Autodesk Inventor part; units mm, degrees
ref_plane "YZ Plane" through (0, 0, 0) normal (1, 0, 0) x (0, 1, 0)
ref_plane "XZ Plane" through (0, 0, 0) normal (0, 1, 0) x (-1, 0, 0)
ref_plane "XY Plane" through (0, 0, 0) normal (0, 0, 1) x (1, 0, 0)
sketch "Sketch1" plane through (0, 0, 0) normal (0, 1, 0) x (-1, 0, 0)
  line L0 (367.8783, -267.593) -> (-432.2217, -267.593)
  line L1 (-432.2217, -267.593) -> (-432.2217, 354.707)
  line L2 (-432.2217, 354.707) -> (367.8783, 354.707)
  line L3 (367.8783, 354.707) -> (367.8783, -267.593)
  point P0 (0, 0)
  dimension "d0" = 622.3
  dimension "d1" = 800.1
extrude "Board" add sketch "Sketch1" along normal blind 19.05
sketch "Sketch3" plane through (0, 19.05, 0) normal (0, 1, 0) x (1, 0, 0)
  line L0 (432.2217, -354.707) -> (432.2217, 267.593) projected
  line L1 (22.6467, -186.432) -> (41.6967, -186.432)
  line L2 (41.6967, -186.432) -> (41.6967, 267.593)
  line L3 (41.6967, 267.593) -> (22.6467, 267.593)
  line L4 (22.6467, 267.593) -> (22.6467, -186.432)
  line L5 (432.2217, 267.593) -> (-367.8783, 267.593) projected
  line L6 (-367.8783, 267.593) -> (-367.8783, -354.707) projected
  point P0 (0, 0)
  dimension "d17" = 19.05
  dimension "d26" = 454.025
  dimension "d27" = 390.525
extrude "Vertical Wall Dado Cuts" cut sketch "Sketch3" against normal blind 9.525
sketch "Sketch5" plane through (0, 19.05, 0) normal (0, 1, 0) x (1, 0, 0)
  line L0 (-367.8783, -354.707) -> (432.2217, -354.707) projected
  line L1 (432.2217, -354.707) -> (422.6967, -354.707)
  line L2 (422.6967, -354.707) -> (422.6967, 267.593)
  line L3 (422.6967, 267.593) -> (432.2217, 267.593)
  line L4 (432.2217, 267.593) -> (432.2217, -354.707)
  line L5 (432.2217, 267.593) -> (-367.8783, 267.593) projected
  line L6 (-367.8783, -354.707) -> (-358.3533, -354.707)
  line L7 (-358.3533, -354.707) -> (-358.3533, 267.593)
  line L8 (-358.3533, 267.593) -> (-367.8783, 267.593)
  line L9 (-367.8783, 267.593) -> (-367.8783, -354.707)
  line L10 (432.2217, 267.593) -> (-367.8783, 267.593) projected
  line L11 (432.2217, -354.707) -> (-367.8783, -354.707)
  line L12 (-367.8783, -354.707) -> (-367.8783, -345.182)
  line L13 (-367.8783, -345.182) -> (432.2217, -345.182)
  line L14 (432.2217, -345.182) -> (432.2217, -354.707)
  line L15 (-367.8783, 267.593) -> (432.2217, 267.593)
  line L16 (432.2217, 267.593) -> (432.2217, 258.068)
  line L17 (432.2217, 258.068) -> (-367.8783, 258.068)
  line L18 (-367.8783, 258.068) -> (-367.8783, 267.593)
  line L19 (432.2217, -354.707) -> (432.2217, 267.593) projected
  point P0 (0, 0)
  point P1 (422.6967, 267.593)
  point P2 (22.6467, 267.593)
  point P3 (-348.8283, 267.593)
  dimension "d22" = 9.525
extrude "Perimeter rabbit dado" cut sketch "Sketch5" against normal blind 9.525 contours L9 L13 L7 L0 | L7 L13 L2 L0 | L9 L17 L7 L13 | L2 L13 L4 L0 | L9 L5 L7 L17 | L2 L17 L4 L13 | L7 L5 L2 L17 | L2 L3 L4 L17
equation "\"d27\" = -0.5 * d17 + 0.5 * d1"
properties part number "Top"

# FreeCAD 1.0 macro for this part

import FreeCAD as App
import Part
import Sketcher
from FreeCAD import Vector
Q = App.Units.Quantity

doc = App.newDocument("Part")
body = doc.addObject("PartDesign::Body", "Body")

sketch1 = doc.addObject("Sketcher::SketchObject", "Sketch")
body.addObject(sketch1)
sketch1.AttachmentSupport = (doc.XZ_Plane, [""])
sketch1.MapMode = "FlatFace"
sketch1.addGeometry([
    Part.LineSegment(Vector(432, -268, 0), Vector(-368, -268, 0)),
    Part.LineSegment(Vector(-368, -268, 0), Vector(-368, 355, 0)),
    Part.LineSegment(Vector(-368, 355, 0), Vector(432, 355, 0)),
    Part.LineSegment(Vector(432, 355, 0), Vector(432, -268, 0)),
], False)
sketch1.addConstraint([
    Sketcher.Constraint("Coincident", 0, 2, 1, 1),
    Sketcher.Constraint("Coincident", 1, 2, 2, 1),
    Sketcher.Constraint("Coincident", 2, 2, 3, 1),
    Sketcher.Constraint("Coincident", 3, 2, 0, 1),
    Sketcher.Constraint("Horizontal", 0),
    Sketcher.Constraint("Vertical", 1),
    Sketcher.Constraint("Horizontal", 2),
    Sketcher.Constraint("Vertical", 3),
    Sketcher.Constraint("DistanceX", 0, 2, 0, 1, Q("31.5 in")),
    Sketcher.Constraint("DistanceY", 1, 1, 1, 2, Q("24.5 in")),
    Sketcher.Constraint("DistanceX", 0, 2, -1, 1, Q("14.4834 in")),
    Sketcher.Constraint("DistanceY", 0, 2, -1, 1, Q("267.593 mm")),
])
pad1 = doc.addObject("PartDesign::Pad", "Pad")
body.addObject(pad1)
pad1.Profile = sketch1
pad1.Length = Q("0.75 in")
pad1.Reversed = True

sketch2 = doc.addObject("Sketcher::SketchObject", "Sketch001")
body.addObject(sketch2)
sketch2.AttachmentSupport = (doc.XZ_Plane, [""])
sketch2.MapMode = "FlatFace"
sketch2.AttachmentOffset = App.Placement(Vector(0, 0, -0.75 * 25.4), App.Rotation())
sketch2.addGeometry([
    Part.LineSegment(Vector(23, -268, 0), Vector(23, 186, 0)),
    Part.LineSegment(Vector(23, 186, 0), Vector(42, 186, 0)),
    Part.LineSegment(Vector(42, 186, 0), Vector(42, -268, 0)),
    Part.LineSegment(Vector(42, -268, 0), Vector(23, -268, 0)),
], False)
sketch2.addConstraint([
    Sketcher.Constraint("Coincident", 0, 2, 1, 1),
    Sketcher.Constraint("Coincident", 1, 2, 2, 1),
    Sketcher.Constraint("Coincident", 2, 2, 3, 1),
    Sketcher.Constraint("Coincident", 3, 2, 0, 1),
    Sketcher.Constraint("Vertical", 0),
    Sketcher.Constraint("Horizontal", 1),
    Sketcher.Constraint("Vertical", 2),
    Sketcher.Constraint("Horizontal", 3),
    Sketcher.Constraint("DistanceX", 1, 1, 1, 2, Q("0.75 in")),
    Sketcher.Constraint("DistanceY", 0, 1, 0, 2, Q("17.875 in")),
    Sketcher.Constraint("DistanceX", -1, 1, 0, 2, Q("0.8916 in")),
    Sketcher.Constraint("DistanceY", -1, 1, 0, 2, Q("186.432 mm")),
])
pocket1 = doc.addObject("PartDesign::Pocket", "Pocket")
body.addObject(pocket1)
pocket1.Profile = sketch2
pocket1.Length = Q("0.375 in")
pocket1.Reversed = True

sketch3 = doc.addObject("Sketcher::SketchObject", "Sketch002")
body.addObject(sketch3)
sketch3.AttachmentSupport = (doc.XZ_Plane, [""])
sketch3.MapMode = "FlatFace"
sketch3.AttachmentOffset = App.Placement(Vector(0, 0, -0.75 * 25.4), App.Rotation())
sketch3.addGeometry([
    Part.LineSegment(Vector(-368, 355, 0), Vector(432, 355, 0)),
    Part.LineSegment(Vector(432, 355, 0), Vector(432, -268, 0)),
    Part.LineSegment(Vector(432, -268, 0), Vector(-368, -268, 0)),
    Part.LineSegment(Vector(-368, -268, 0), Vector(-368, 355, 0)),
    Part.LineSegment(Vector(-358, 345, 0), Vector(-358, -258, 0)),
    Part.LineSegment(Vector(-358, -258, 0), Vector(423, -258, 0)),
    Part.LineSegment(Vector(423, -258, 0), Vector(423, 345, 0)),
    Part.LineSegment(Vector(423, 345, 0), Vector(-358, 345, 0)),
], False)
sketch3.addConstraint([
    Sketcher.Constraint("Coincident", 0, 2, 1, 1),
    Sketcher.Constraint("Coincident", 1, 2, 2, 1),
    Sketcher.Constraint("Coincident", 2, 2, 3, 1),
    Sketcher.Constraint("Coincident", 3, 2, 0, 1),
    Sketcher.Constraint("Coincident", 4, 2, 5, 1),
    Sketcher.Constraint("Coincident", 5, 2, 6, 1),
    Sketcher.Constraint("Coincident", 6, 2, 7, 1),
    Sketcher.Constraint("Coincident", 7, 2, 4, 1),
    Sketcher.Constraint("Horizontal", 0),
    Sketcher.Constraint("Vertical", 1),
    Sketcher.Constraint("Horizontal", 2),
    Sketcher.Constraint("Vertical", 3),
    Sketcher.Constraint("Vertical", 4),
    Sketcher.Constraint("Horizontal", 5),
    Sketcher.Constraint("Vertical", 6),
    Sketcher.Constraint("Horizontal", 7),
    Sketcher.Constraint("DistanceX", 0, 1, 0, 2, Q("31.5 in")),
    Sketcher.Constraint("DistanceY", 1, 2, 1, 1, Q("24.5 in")),
    Sketcher.Constraint("DistanceX", 2, 2, 4, 2, Q("0.375 in")),
    Sketcher.Constraint("DistanceY", 2, 2, 4, 2, Q("0.375 in")),
    Sketcher.Constraint("DistanceX", 5, 2, 1, 2, Q("0.375 in")),
    Sketcher.Constraint("DistanceY", 6, 2, 0, 2, Q("0.375 in")),
    Sketcher.Constraint("DistanceX", -1, 1, 0, 2, Q("17.0166 in")),
    Sketcher.Constraint("DistanceY", -1, 1, 0, 2, Q("354.707 mm")),
])
pocket2 = doc.addObject("PartDesign::Pocket", "Pocket001")
body.addObject(pocket2)
pocket2.Profile = sketch3
pocket2.Length = Q("0.375 in")
pocket2.Reversed = True

doc.recompute()
